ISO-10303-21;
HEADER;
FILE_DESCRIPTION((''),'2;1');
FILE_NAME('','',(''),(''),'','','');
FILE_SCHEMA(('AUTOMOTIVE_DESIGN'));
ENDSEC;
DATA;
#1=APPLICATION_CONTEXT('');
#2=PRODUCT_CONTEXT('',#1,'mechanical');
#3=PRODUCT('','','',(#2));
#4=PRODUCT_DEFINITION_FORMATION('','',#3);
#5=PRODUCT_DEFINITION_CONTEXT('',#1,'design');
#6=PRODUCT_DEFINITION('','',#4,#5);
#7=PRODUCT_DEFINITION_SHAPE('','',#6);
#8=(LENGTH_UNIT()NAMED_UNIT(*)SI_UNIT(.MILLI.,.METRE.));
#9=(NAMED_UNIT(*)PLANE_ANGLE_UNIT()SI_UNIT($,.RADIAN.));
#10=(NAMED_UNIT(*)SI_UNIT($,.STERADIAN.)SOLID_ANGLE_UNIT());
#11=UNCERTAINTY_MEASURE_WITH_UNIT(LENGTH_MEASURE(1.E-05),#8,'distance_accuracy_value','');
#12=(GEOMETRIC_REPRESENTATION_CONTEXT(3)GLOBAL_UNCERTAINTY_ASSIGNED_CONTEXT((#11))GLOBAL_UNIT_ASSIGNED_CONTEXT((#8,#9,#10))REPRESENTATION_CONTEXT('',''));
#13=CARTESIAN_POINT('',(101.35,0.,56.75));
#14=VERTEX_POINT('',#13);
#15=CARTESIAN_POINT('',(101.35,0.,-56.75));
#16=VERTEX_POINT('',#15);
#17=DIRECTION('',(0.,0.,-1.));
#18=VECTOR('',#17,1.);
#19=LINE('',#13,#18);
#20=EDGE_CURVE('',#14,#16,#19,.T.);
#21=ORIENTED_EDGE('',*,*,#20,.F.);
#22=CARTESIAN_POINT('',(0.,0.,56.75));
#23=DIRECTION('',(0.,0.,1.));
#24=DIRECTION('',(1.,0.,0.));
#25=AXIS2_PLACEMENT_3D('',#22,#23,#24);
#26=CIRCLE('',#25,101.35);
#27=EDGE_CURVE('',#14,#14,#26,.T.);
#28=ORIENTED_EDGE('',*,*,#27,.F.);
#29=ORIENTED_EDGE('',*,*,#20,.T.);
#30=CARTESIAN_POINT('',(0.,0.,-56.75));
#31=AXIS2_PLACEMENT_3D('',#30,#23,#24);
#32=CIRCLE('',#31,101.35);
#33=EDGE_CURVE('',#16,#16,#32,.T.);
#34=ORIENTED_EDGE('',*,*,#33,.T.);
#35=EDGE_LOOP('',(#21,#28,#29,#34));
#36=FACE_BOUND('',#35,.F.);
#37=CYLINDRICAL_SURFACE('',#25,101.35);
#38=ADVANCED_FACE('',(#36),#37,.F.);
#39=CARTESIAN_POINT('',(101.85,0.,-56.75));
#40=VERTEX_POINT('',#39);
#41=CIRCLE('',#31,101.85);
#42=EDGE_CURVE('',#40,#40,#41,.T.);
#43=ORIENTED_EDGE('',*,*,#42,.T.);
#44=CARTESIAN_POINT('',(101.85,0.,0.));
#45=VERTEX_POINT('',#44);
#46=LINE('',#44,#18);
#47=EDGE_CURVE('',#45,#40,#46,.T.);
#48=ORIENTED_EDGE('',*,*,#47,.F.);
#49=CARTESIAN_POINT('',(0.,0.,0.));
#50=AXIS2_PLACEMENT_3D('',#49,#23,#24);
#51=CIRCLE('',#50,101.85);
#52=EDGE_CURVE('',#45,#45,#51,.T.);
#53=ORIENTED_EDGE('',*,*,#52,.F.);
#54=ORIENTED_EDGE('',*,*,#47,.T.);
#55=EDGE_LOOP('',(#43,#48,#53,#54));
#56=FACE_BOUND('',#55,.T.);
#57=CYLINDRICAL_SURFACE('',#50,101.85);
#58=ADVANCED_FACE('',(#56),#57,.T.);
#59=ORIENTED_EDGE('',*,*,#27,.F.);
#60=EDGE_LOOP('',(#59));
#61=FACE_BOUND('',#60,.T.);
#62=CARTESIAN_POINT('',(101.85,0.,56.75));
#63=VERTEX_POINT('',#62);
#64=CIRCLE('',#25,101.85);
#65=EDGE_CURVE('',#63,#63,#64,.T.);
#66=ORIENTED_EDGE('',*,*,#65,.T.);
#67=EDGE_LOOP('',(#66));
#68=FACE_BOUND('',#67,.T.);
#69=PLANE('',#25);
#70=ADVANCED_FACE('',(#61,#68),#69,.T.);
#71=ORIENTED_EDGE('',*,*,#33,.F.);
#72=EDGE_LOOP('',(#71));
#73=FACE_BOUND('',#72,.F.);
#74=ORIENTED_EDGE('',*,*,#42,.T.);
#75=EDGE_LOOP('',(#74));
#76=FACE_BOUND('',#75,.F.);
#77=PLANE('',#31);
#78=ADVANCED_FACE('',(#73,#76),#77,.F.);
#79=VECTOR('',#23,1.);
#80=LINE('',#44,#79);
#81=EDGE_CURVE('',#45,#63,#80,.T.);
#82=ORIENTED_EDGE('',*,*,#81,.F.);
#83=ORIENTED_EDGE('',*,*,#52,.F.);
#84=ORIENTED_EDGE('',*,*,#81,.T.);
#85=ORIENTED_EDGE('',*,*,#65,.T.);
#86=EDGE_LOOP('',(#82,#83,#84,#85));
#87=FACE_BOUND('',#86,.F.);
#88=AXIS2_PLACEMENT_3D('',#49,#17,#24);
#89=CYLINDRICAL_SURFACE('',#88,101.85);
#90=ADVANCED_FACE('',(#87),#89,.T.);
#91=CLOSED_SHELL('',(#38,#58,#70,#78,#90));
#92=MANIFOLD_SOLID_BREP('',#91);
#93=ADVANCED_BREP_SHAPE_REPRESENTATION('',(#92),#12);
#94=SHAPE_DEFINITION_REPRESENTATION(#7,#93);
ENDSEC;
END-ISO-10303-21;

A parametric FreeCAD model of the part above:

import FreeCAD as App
import Part
import Sketcher

V = App.Vector
Q = App.Units.Quantity

doc = App.newDocument("Part")
body = doc.addObject("PartDesign::Body", "Body")

sketch1 = doc.addObject("Sketcher::SketchObject", "Sketch")
body.addObject(sketch1)
sketch1.AttachmentSupport = (doc.XY_Plane, [""])
sketch1.MapMode = "FlatFace"
sketch1.addGeometry(Part.Circle(V(0, 0, 0), V(0, 0, 1), 102), False)
sketch1.addConstraint([
    Sketcher.Constraint("Coincident", 0, 3, -1, 1),
    Sketcher.Constraint("Diameter", 0, Q("203.7 mm")),
])
pad1 = doc.addObject("PartDesign::Pad", "Pad")
body.addObject(pad1)
pad1.Profile = sketch1
pad1.Length = 113.5
pad1.Midplane = True

sketch2 = doc.addObject("Sketcher::SketchObject", "Sketch001")
body.addObject(sketch2)
sketch2.AttachmentSupport = (doc.XY_Plane, [""])
sketch2.MapMode = "FlatFace"
sketch2.AttachmentOffset = App.Placement(V(0, 0, 56.75), App.Rotation())
sketch2.addGeometry(Part.Circle(V(0, 0, 0), V(0, 0, 1), 101), False)
sketch2.addConstraint([
    Sketcher.Constraint("Coincident", 0, 3, -1, 1),
    Sketcher.Constraint("Diameter", 0, Q("202.7 mm")),
])
pocket1 = doc.addObject("PartDesign::Pocket", "Pocket")
body.addObject(pocket1)
pocket1.Profile = sketch2
pocket1.Type = "ThroughAll"

doc.recompute()
